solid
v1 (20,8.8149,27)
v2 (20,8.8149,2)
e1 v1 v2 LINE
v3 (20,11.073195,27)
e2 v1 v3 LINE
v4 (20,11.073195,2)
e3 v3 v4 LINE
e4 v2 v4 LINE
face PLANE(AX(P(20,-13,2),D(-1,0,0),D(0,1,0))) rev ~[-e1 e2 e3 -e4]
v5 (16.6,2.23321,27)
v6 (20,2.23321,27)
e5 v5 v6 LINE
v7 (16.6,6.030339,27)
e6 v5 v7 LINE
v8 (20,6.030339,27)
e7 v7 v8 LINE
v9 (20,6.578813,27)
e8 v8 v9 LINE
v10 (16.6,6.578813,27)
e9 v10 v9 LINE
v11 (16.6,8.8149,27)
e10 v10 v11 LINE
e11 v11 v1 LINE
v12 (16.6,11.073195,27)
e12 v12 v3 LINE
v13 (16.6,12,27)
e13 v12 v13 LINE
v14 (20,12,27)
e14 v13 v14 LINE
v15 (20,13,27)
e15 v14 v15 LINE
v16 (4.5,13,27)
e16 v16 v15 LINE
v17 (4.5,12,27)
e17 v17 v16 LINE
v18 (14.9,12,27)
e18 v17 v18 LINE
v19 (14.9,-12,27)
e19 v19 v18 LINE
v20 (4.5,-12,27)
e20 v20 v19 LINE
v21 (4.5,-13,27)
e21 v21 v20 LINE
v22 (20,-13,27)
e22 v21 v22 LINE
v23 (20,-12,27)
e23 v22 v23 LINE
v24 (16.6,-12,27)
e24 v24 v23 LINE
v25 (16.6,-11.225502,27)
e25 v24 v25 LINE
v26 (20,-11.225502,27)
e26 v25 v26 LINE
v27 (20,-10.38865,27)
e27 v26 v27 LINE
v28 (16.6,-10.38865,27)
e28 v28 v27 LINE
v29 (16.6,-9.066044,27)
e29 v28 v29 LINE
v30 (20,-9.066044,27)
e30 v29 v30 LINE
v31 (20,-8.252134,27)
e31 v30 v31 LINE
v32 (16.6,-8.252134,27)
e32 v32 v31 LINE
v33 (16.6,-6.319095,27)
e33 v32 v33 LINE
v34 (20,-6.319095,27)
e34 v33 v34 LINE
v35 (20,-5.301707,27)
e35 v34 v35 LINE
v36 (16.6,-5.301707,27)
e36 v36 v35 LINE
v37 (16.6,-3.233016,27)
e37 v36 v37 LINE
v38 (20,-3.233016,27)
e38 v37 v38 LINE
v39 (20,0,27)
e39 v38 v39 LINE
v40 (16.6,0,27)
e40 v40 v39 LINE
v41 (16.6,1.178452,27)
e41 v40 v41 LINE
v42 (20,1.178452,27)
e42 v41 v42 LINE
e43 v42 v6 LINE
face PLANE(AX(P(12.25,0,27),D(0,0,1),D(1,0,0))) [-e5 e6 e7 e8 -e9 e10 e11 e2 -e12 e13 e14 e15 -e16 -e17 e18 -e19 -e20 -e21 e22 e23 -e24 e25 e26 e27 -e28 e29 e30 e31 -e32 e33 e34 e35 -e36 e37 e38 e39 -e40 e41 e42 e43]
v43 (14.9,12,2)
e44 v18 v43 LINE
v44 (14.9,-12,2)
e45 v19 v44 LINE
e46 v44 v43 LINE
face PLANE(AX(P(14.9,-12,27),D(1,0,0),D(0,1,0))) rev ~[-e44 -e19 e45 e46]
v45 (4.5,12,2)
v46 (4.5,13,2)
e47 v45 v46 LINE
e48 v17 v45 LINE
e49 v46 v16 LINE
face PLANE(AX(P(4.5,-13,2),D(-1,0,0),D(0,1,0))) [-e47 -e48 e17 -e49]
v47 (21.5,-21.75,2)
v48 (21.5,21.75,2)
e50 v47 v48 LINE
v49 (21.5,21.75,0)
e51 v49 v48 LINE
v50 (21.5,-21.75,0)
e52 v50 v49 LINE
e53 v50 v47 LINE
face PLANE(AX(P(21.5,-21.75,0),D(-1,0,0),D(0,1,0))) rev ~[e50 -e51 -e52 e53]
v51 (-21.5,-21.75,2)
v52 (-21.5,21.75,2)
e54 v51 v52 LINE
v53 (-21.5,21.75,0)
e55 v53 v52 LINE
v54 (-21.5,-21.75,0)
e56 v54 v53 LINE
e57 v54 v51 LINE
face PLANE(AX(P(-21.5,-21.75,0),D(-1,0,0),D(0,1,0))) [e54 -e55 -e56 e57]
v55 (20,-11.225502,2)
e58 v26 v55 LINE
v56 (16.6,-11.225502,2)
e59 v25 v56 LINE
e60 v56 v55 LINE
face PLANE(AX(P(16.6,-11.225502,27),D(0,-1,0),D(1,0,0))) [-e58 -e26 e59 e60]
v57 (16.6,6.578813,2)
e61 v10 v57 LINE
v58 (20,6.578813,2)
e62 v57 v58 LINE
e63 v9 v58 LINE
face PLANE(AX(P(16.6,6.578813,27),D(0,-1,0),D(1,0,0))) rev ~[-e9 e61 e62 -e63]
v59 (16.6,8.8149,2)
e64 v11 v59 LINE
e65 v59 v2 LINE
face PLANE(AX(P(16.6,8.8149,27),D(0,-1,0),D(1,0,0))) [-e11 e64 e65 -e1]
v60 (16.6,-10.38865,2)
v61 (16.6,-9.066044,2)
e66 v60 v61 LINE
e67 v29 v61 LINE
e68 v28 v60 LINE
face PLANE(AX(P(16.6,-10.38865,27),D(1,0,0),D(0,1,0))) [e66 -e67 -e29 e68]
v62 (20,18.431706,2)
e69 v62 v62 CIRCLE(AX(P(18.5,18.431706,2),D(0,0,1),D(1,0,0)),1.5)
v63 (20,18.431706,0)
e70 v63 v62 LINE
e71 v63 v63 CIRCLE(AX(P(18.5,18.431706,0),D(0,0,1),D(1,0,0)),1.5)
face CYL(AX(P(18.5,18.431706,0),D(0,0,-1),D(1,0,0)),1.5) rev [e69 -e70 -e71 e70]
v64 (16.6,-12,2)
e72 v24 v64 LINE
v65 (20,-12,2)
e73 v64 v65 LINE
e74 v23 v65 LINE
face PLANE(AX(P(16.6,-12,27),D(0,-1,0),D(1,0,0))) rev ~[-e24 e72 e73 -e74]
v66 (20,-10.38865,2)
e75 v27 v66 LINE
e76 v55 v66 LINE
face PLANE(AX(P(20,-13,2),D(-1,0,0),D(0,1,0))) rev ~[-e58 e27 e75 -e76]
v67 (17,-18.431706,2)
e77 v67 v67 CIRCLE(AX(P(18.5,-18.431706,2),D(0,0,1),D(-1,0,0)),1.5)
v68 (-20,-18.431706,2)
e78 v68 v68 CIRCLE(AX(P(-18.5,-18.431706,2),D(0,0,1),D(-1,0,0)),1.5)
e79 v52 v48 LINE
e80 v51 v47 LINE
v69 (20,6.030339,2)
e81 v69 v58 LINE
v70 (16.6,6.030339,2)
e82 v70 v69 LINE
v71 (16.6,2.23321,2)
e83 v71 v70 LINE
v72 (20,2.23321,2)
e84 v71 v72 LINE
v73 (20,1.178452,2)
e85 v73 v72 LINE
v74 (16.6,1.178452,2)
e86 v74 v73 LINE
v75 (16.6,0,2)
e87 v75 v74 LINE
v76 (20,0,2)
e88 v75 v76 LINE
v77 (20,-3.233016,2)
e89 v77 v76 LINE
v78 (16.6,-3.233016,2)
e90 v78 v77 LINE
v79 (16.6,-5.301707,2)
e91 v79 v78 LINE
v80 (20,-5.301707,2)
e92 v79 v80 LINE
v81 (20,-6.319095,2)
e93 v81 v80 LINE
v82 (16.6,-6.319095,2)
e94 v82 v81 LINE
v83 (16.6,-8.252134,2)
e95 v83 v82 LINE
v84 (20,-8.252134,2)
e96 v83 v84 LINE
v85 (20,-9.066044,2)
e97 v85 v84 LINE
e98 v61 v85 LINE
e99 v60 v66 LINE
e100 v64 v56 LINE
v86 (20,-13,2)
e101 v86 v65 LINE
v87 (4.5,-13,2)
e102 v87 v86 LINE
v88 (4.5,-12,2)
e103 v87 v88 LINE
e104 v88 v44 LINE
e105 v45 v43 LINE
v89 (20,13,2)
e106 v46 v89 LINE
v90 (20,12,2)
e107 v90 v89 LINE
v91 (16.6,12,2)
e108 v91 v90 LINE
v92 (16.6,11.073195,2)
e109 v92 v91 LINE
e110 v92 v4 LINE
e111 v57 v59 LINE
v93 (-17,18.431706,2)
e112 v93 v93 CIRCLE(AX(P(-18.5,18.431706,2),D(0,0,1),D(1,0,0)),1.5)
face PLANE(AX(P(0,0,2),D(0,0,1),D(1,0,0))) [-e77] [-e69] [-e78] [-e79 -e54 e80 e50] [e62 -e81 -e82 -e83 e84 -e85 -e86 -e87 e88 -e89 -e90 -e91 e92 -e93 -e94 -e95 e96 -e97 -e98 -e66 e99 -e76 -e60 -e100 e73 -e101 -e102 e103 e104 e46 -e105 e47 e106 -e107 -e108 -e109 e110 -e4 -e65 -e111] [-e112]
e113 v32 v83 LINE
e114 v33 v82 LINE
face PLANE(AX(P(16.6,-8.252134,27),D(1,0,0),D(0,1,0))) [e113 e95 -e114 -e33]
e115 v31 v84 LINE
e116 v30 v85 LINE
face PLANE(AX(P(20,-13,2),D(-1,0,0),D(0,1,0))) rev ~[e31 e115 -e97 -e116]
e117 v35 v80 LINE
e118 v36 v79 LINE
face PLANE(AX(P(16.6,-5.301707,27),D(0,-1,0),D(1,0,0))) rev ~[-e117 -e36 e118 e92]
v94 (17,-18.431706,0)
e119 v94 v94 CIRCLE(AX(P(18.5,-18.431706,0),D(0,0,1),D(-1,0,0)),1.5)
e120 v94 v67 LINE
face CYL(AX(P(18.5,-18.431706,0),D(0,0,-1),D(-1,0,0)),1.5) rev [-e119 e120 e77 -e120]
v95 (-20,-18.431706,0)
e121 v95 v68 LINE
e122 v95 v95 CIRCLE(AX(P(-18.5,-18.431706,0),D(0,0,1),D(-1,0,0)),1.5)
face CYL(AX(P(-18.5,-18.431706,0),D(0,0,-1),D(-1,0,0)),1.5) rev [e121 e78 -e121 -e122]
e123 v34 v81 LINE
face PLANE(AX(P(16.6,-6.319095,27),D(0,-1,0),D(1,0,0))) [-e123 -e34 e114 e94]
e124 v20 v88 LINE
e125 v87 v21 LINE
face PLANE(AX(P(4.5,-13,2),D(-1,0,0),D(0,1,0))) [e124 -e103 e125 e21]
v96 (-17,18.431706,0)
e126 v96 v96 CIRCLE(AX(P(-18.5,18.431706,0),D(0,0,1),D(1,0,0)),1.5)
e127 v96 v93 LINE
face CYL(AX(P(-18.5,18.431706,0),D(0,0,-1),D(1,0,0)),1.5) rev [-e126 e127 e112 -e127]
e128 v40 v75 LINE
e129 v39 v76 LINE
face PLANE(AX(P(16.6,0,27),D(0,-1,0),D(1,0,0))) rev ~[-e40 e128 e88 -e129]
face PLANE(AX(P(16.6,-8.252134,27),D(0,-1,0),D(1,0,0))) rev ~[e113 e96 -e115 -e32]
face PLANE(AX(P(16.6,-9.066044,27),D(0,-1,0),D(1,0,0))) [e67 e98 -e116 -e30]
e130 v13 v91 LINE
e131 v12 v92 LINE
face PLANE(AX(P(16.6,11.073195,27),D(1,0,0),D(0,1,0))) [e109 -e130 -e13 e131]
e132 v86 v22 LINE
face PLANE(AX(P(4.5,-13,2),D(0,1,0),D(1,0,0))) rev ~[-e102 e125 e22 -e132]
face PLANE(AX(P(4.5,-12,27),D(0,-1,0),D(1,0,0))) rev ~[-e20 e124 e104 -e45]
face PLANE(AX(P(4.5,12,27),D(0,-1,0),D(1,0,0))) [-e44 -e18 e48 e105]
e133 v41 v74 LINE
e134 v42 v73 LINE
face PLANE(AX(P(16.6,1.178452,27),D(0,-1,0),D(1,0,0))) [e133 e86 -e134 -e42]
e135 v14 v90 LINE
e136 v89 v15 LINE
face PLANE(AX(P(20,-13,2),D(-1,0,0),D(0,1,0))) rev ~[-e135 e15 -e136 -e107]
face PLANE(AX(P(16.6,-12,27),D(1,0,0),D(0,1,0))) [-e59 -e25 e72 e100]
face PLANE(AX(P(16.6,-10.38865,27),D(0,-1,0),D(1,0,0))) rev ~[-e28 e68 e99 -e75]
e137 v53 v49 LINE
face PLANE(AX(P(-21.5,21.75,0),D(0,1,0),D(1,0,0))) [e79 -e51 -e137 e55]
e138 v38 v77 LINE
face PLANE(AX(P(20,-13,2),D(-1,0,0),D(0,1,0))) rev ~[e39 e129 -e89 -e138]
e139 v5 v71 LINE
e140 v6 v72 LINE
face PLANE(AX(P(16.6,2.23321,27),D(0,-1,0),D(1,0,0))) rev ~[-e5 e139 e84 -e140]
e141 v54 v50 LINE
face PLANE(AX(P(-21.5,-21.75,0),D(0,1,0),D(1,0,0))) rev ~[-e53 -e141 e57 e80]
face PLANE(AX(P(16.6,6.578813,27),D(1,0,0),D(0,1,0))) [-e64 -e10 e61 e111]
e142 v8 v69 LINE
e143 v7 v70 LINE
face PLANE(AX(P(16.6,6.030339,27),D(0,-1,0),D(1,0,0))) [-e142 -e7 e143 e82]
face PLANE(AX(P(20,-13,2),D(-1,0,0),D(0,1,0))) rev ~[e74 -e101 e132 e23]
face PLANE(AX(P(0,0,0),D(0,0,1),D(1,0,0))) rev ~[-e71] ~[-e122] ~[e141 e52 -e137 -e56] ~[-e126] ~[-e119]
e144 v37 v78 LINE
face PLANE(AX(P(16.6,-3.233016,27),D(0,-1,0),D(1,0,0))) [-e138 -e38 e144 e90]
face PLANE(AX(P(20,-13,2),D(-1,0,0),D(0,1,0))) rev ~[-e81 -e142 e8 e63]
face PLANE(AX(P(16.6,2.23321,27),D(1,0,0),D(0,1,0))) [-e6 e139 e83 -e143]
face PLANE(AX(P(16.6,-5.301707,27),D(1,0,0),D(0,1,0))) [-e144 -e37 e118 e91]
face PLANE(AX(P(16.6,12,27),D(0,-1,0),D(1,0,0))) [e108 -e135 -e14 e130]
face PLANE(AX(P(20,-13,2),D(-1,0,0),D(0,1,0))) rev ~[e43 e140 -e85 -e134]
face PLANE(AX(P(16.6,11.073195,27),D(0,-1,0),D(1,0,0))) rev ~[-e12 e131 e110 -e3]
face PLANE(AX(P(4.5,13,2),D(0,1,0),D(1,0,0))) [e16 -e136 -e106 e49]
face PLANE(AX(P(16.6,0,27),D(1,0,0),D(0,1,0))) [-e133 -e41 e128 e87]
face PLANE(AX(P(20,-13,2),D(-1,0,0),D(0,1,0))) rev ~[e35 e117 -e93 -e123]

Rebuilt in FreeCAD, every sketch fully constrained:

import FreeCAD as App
import Part
import Sketcher

V = App.Vector
Q = App.Units.Quantity


def add_polygon(sketch, points):
    """Adds a closed chain of lines whose ends are joined by coincident constraints."""
    first, n = sketch.GeometryCount, len(points)
    for a, b in zip(points, points[1:] + points[:1]):
        sketch.addGeometry(Part.LineSegment(App.Vector(*a, 0), App.Vector(*b, 0)), False)
    for i in range(n):
        sketch.addConstraint(Sketcher.Constraint("Coincident", first + i, 2, first + (i + 1) % n, 1))

doc = App.newDocument("Part")
body = doc.addObject("PartDesign::Body", "Body")

# Sketch on XY plane
sketch1 = body.newObject("Sketcher::SketchObject", "Sketch")
sketch1.AttachmentSupport = (doc.getObject("XY_Plane"), [""])
sketch1.MapMode = "FlatFace"
add_polygon(sketch1, [(-21.5, 21.75), (-21.5, -21.75), (21.5, -21.75), (21.5, 21.75)])  # lines 0-3
sketch1.addGeometry(Part.Circle(V(-18.5, -18.431706, 0), V(0, 0, 1), 1.5), False)  # 4
sketch1.addGeometry(Part.Circle(V(18.5, -18.431706, 0), V(0, 0, 1), 1.5), False)  # 5
sketch1.addGeometry(Part.Circle(V(-18.5, 18.431706, 0), V(0, 0, 1), 1.5), False)  # 6
sketch1.addGeometry(Part.Circle(V(18.5, 18.431706, 0), V(0, 0, 1), 1.5), False)  # 7
sketch1.addConstraint(Sketcher.Constraint("Vertical", 0))
sketch1.addConstraint(Sketcher.Constraint("Horizontal", 1))
sketch1.addConstraint(Sketcher.Constraint("Vertical", 2))
sketch1.addConstraint(Sketcher.Constraint("Horizontal", 3))
sketch1.addConstraint(Sketcher.Constraint("Equal", 4, 5))
sketch1.addConstraint(Sketcher.Constraint("Equal", 5, 6))
sketch1.addConstraint(Sketcher.Constraint("Equal", 6, 7))
sketch1.addConstraint(Sketcher.Constraint("Symmetric", 5, 3, 6, 3, -1, 1))
sketch1.addConstraint(Sketcher.Constraint("Symmetric", 4, 3, 7, 3, -1, 1))
sketch1.addConstraint(Sketcher.Constraint("Symmetric", 0, 2, 2, 2, -1, 1))
sketch1.addConstraint(Sketcher.Constraint("Symmetric", 4, 3, 5, 3, -2))
sketch1.addConstraint(Sketcher.Constraint("Diameter", 4, Q("3 mm")))
sketch1.addConstraint(Sketcher.Constraint("DistanceX", 1, 1, 1, 2, Q("43 mm")))
sketch1.addConstraint(Sketcher.Constraint("DistanceY", 0, 2, 0, 1, Q("43.5 mm")))
sketch1.addConstraint(Sketcher.Constraint("DistanceX", 4, 3, 5, 3, Q("37 mm")))
sketch1.addConstraint(Sketcher.Constraint("DistanceY", 4, 3, 6, 3, Q("36.863411 mm")))
pad1 = body.newObject("PartDesign::Pad", "Pad")
pad1.Profile = sketch1
pad1.Length = 2

# Sketch on XY plane
sketch2 = body.newObject("Sketcher::SketchObject", "Sketch001")
sketch2.AttachmentSupport = (doc.getObject("XY_Plane"), [""])
sketch2.MapMode = "FlatFace"
sketch2.AttachmentOffset = App.Placement(V(0, 0, 2), App.Rotation())
add_polygon(sketch2, [(4.5, 13), (4.5, -13), (20, -13), (20, 13)])  # lines 0-3
sketch2.addConstraint(Sketcher.Constraint("Vertical", 0))
sketch2.addConstraint(Sketcher.Constraint("Horizontal", 1))
sketch2.addConstraint(Sketcher.Constraint("Vertical", 2))
sketch2.addConstraint(Sketcher.Constraint("Horizontal", 3))
sketch2.addConstraint(Sketcher.Constraint("DistanceY", 0, 2, 0, 1, Q("26 mm")))
sketch2.addConstraint(Sketcher.Constraint("DistanceX", 1, 1, 1, 2, Q("15.5 mm")))
sketch2.addConstraint(Sketcher.Constraint("DistanceY", 0, 2, -1, 1, Q("13 mm")))
sketch2.addConstraint(Sketcher.Constraint("DistanceX", -1, 1, 1, 2, Q("20 mm")))
pad2 = body.newObject("PartDesign::Pad", "Pad001")
pad2.Profile = sketch2
pad2.Length = 25

# Sketch on XY plane
sketch3 = body.newObject("Sketcher::SketchObject", "Sketch002")
sketch3.AttachmentSupport = (doc.getObject("XY_Plane"), [""])
sketch3.MapMode = "FlatFace"
sketch3.AttachmentOffset = App.Placement(V(0, 0, 27), App.Rotation())
add_polygon(sketch3, [(4.5, 12), (4.5, -12), (14.9, -12), (14.9, 12)])  # lines 0-3
add_polygon(sketch3, [(16.6, 12), (16.6, 11.073195), (20, 11.073195), (20, 12)])  # lines 4-7
add_polygon(sketch3, [(16.6, -11.225502), (16.6, -12), (20, -12), (20, -11.225502)])  # lines 8-11
add_polygon(sketch3, [(16.6, 8.8149), (16.6, 6.578813), (20, 6.578813), (20, 8.8149)])  # lines 12-15
add_polygon(sketch3, [(16.6, 6.030339), (16.6, 2.23321), (20, 2.23321), (20, 6.030339)])  # lines 16-19
add_polygon(sketch3, [(16.6, 1.178452), (16.6, 0), (20, 0), (20, 1.178452)])  # lines 20-23
add_polygon(sketch3, [(16.6, -9.066044), (16.6, -10.38865), (20, -10.38865), (20, -9.066044)])  # lines 24-27
add_polygon(sketch3, [(16.6, -6.319095), (16.6, -8.252134), (20, -8.252134), (20, -6.319095)])  # lines 28-31
add_polygon(sketch3, [(16.6, -3.233016), (16.6, -5.301707), (20, -5.301707), (20, -3.233016)])  # lines 32-35
sketch3.addConstraint(Sketcher.Constraint("Vertical", 0))
sketch3.addConstraint(Sketcher.Constraint("Horizontal", 1))
sketch3.addConstraint(Sketcher.Constraint("Vertical", 2))
sketch3.addConstraint(Sketcher.Constraint("Horizontal", 3))
sketch3.addConstraint(Sketcher.Constraint("Vertical", 4))
sketch3.addConstraint(Sketcher.Constraint("Horizontal", 5))
sketch3.addConstraint(Sketcher.Constraint("Vertical", 6))
sketch3.addConstraint(Sketcher.Constraint("Horizontal", 7))
sketch3.addConstraint(Sketcher.Constraint("Vertical", 8))
sketch3.addConstraint(Sketcher.Constraint("Horizontal", 9))
sketch3.addConstraint(Sketcher.Constraint("Vertical", 10))
sketch3.addConstraint(Sketcher.Constraint("Horizontal", 11))
sketch3.addConstraint(Sketcher.Constraint("Vertical", 12))
sketch3.addConstraint(Sketcher.Constraint("Horizontal", 13))
sketch3.addConstraint(Sketcher.Constraint("Vertical", 14))
sketch3.addConstraint(Sketcher.Constraint("Horizontal", 15))
sketch3.addConstraint(Sketcher.Constraint("Vertical", 16))
sketch3.addConstraint(Sketcher.Constraint("Horizontal", 17))
sketch3.addConstraint(Sketcher.Constraint("Vertical", 18))
sketch3.addConstraint(Sketcher.Constraint("Horizontal", 19))
sketch3.addConstraint(Sketcher.Constraint("Vertical", 20))
sketch3.addConstraint(Sketcher.Constraint("Horizontal", 21))
sketch3.addConstraint(Sketcher.Constraint("Vertical", 22))
sketch3.addConstraint(Sketcher.Constraint("Horizontal", 23))
sketch3.addConstraint(Sketcher.Constraint("Vertical", 24))
sketch3.addConstraint(Sketcher.Constraint("Horizontal", 25))
sketch3.addConstraint(Sketcher.Constraint("Vertical", 26))
sketch3.addConstraint(Sketcher.Constraint("Horizontal", 27))
sketch3.addConstraint(Sketcher.Constraint("Vertical", 28))
sketch3.addConstraint(Sketcher.Constraint("Horizontal", 29))
sketch3.addConstraint(Sketcher.Constraint("Vertical", 30))
sketch3.addConstraint(Sketcher.Constraint("Horizontal", 31))
sketch3.addConstraint(Sketcher.Constraint("Vertical", 32))
sketch3.addConstraint(Sketcher.Constraint("Horizontal", 33))
sketch3.addConstraint(Sketcher.Constraint("Vertical", 34))
sketch3.addConstraint(Sketcher.Constraint("Horizontal", 35))
sketch3.addConstraint(Sketcher.Constraint("Symmetric", 7, 2, 8, 2, -1))
sketch3.addConstraint(Sketcher.Constraint("PointOnObject", 20, 2, -1))
sketch3.addConstraint(Sketcher.Constraint("Horizontal", 3, 2, 6, 2))
sketch3.addConstraint(Sketcher.Constraint("Horizontal", 1, 2, 8, 2))
sketch3.addConstraint(Sketcher.Constraint("Vertical", 6, 2, 9, 2))
sketch3.addConstraint(Sketcher.Constraint("Vertical", 11, 2, 12, 2))
sketch3.addConstraint(Sketcher.Constraint("Vertical", 10, 2, 13, 2))
sketch3.addConstraint(Sketcher.Constraint("Vertical", 15, 2, 16, 2))
sketch3.addConstraint(Sketcher.Constraint("Vertical", 14, 2, 17, 2))
sketch3.addConstraint(Sketcher.Constraint("Vertical", 19, 2, 20, 2))
sketch3.addConstraint(Sketcher.Constraint("Vertical", 18, 2, 21, 2))
sketch3.addConstraint(Sketcher.Constraint("Vertical", 23, 2, 24, 2))
sketch3.addConstraint(Sketcher.Constraint("Vertical", 22, 2, 25, 2))
sketch3.addConstraint(Sketcher.Constraint("Vertical", 27, 2, 28, 2))
sketch3.addConstraint(Sketcher.Constraint("Vertical", 26, 2, 29, 2))
sketch3.addConstraint(Sketcher.Constraint("Vertical", 31, 2, 32, 2))
sketch3.addConstraint(Sketcher.Constraint("Vertical", 30, 2, 33, 2))
sketch3.addConstraint(Sketcher.Constraint("DistanceY", 0, 2, 0, 1, Q("24 mm")))
sketch3.addConstraint(Sketcher.Constraint("DistanceX", 1, 1, 1, 2, Q("10.4 mm")))
sketch3.addConstraint(Sketcher.Constraint("DistanceX", 5, 1, 5, 2, Q("3.4 mm")))
sketch3.addConstraint(Sketcher.Constraint("DistanceX", -1, 1, 5, 2, Q("20 mm")))
sketch3.addConstraint(Sketcher.Constraint("DistanceX", -1, 1, 0, 2, Q("4.5 mm")))
sketch3.addConstraint(Sketcher.Constraint("DistanceY", 8, 2, 8, 1, Q("0.774498 mm")))
sketch3.addConstraint(Sketcher.Constraint("DistanceY", 16, 2, 16, 1, Q("3.797129 mm")))
sketch3.addConstraint(Sketcher.Constraint("DistanceY", 28, 2, 28, 1, Q("1.933038 mm")))
sketch3.addConstraint(Sketcher.Constraint("DistanceY", 32, 2, 32, 1, Q("2.06869 mm")))
sketch3.addConstraint(Sketcher.Constraint("DistanceY", -1, 1, 14, 2, Q("8.8149 mm")))
sketch3.addConstraint(Sketcher.Constraint("DistanceY", 4, 2, 4, 1, Q("0.926805 mm")))
sketch3.addConstraint(Sketcher.Constraint("DistanceY", 12, 2, 12, 1, Q("2.236087 mm")))
sketch3.addConstraint(Sketcher.Constraint("DistanceY", 20, 2, 20, 1, Q("1.178452 mm")))
sketch3.addConstraint(Sketcher.Constraint("DistanceY", 24, 2, 24, 1, Q("1.322605 mm")))
sketch3.addConstraint(Sketcher.Constraint("DistanceY", -1, 1, 16, 2, Q("2.23321 mm")))
sketch3.addConstraint(Sketcher.Constraint("DistanceY", 24, 2, -1, 1, Q("10.38865 mm")))
sketch3.addConstraint(Sketcher.Constraint("DistanceY", 27, 2, 28, 2, Q("0.813911 mm")))
sketch3.addConstraint(Sketcher.Constraint("DistanceY", 31, 2, 32, 2, Q("1.017389 mm")))
pocket1 = body.newObject("PartDesign::Pocket", "Pocket")
pocket1.Profile = sketch3
pocket1.Length = 25

doc.recompute()
